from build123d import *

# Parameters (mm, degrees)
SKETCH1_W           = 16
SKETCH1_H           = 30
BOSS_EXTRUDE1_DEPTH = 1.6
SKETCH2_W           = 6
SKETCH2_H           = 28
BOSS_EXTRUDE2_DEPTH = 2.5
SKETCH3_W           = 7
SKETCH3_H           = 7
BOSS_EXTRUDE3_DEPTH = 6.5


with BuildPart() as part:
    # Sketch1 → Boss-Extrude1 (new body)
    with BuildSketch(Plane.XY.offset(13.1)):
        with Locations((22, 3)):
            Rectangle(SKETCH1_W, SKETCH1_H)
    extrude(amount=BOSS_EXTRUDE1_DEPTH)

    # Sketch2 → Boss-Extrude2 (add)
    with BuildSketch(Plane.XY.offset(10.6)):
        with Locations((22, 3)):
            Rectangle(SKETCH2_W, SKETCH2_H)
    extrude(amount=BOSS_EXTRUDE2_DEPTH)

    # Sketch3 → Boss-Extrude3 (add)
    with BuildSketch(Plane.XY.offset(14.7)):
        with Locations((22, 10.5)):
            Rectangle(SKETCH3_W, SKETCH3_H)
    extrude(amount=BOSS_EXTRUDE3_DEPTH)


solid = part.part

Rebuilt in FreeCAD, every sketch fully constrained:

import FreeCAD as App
import Part
import Sketcher

V = App.Vector

doc = App.newDocument("Part")
body = doc.addObject("PartDesign::Body", "Body")

# Sketch on XY plane
sketch1 = body.newObject("Sketcher::SketchObject", "Sketch")
sketch1.AttachmentSupport = (doc.getObject("XY_Plane"), [""])
sketch1.MapMode = "FlatFace"
sketch1.AttachmentOffset = App.Placement(V(0, 0, 13.1), App.Rotation())
sketch1.addGeometry([
    Part.LineSegment(V(14, 18, 0), V(14, -12, 0)),
    Part.LineSegment(V(14, -12, 0), V(30, -12, 0)),
    Part.LineSegment(V(30, -12, 0), V(30, 18, 0)),
    Part.LineSegment(V(30, 18, 0), V(14, 18, 0)),
], False)
sketch1.addConstraint([
    Sketcher.Constraint("Coincident", 0, 2, 1, 1),
    Sketcher.Constraint("Coincident", 1, 2, 2, 1),
    Sketcher.Constraint("Coincident", 2, 2, 3, 1),
    Sketcher.Constraint("Coincident", 3, 2, 0, 1),
    Sketcher.Constraint("Vertical", 0),
    Sketcher.Constraint("Horizontal", 1),
    Sketcher.Constraint("Vertical", 2),
    Sketcher.Constraint("Horizontal", 3),
    Sketcher.Constraint("DistanceX", 1, 1, 1, 2, 16.0),
    Sketcher.Constraint("DistanceY", 0, 2, 0, 1, 30.0),
    Sketcher.Constraint("DistanceX", -1, 1, 0, 2, 14.0),
    Sketcher.Constraint("DistanceY", 0, 2, -1, 1, 12.0),
])
pad1 = body.newObject("PartDesign::Pad", "Pad")
pad1.Profile = sketch1
pad1.Length = 1.6

# Sketch on XY plane
sketch2 = body.newObject("Sketcher::SketchObject", "Sketch001")
sketch2.AttachmentSupport = (doc.getObject("XY_Plane"), [""])
sketch2.MapMode = "FlatFace"
sketch2.AttachmentOffset = App.Placement(V(0, 0, 10.6), App.Rotation())
sketch2.addGeometry([
    Part.LineSegment(V(19, 17, 0), V(19, -11, 0)),
    Part.LineSegment(V(19, -11, 0), V(25, -11, 0)),
    Part.LineSegment(V(25, -11, 0), V(25, 17, 0)),
    Part.LineSegment(V(25, 17, 0), V(19, 17, 0)),
], False)
sketch2.addConstraint([
    Sketcher.Constraint("Coincident", 0, 2, 1, 1),
    Sketcher.Constraint("Coincident", 1, 2, 2, 1),
    Sketcher.Constraint("Coincident", 2, 2, 3, 1),
    Sketcher.Constraint("Coincident", 3, 2, 0, 1),
    Sketcher.Constraint("Vertical", 0),
    Sketcher.Constraint("Horizontal", 1),
    Sketcher.Constraint("Vertical", 2),
    Sketcher.Constraint("Horizontal", 3),
    Sketcher.Constraint("DistanceX", 1, 1, 1, 2, 6.0),
    Sketcher.Constraint("DistanceY", 0, 2, 0, 1, 28.0),
    Sketcher.Constraint("DistanceX", -1, 1, 0, 2, 19.0),
    Sketcher.Constraint("DistanceY", 0, 2, -1, 1, 11.0),
])
pad2 = body.newObject("PartDesign::Pad", "Pad001")
pad2.Profile = sketch2
pad2.Length = 2.5

# Sketch on XY plane
sketch3 = body.newObject("Sketcher::SketchObject", "Sketch002")
sketch3.AttachmentSupport = (doc.getObject("XY_Plane"), [""])
sketch3.MapMode = "FlatFace"
sketch3.AttachmentOffset = App.Placement(V(0, 0, 14.7), App.Rotation())
sketch3.addGeometry([
    Part.LineSegment(V(18.5, 14, 0), V(18.5, 7, 0)),
    Part.LineSegment(V(18.5, 7, 0), V(25.5, 7, 0)),
    Part.LineSegment(V(25.5, 7, 0), V(25.5, 14, 0)),
    Part.LineSegment(V(25.5, 14, 0), V(18.5, 14, 0)),
], False)
sketch3.addConstraint([
    Sketcher.Constraint("Coincident", 0, 2, 1, 1),
    Sketcher.Constraint("Coincident", 1, 2, 2, 1),
    Sketcher.Constraint("Coincident", 2, 2, 3, 1),
    Sketcher.Constraint("Coincident", 3, 2, 0, 1),
    Sketcher.Constraint("Vertical", 0),
    Sketcher.Constraint("Horizontal", 1),
    Sketcher.Constraint("Vertical", 2),
    Sketcher.Constraint("Horizontal", 3),
    Sketcher.Constraint("Equal", 3, 0),
    Sketcher.Constraint("DistanceX", 1, 1, 1, 2, 7.0),
    Sketcher.Constraint("DistanceY", -1, 1, 0, 2, 7.0),
    Sketcher.Constraint("DistanceX", -1, 1, 0, 2, 18.5),
])
pad3 = body.newObject("PartDesign::Pad", "Pad002")
pad3.Profile = sketch3
pad3.Length = 6.5

doc.recompute()
